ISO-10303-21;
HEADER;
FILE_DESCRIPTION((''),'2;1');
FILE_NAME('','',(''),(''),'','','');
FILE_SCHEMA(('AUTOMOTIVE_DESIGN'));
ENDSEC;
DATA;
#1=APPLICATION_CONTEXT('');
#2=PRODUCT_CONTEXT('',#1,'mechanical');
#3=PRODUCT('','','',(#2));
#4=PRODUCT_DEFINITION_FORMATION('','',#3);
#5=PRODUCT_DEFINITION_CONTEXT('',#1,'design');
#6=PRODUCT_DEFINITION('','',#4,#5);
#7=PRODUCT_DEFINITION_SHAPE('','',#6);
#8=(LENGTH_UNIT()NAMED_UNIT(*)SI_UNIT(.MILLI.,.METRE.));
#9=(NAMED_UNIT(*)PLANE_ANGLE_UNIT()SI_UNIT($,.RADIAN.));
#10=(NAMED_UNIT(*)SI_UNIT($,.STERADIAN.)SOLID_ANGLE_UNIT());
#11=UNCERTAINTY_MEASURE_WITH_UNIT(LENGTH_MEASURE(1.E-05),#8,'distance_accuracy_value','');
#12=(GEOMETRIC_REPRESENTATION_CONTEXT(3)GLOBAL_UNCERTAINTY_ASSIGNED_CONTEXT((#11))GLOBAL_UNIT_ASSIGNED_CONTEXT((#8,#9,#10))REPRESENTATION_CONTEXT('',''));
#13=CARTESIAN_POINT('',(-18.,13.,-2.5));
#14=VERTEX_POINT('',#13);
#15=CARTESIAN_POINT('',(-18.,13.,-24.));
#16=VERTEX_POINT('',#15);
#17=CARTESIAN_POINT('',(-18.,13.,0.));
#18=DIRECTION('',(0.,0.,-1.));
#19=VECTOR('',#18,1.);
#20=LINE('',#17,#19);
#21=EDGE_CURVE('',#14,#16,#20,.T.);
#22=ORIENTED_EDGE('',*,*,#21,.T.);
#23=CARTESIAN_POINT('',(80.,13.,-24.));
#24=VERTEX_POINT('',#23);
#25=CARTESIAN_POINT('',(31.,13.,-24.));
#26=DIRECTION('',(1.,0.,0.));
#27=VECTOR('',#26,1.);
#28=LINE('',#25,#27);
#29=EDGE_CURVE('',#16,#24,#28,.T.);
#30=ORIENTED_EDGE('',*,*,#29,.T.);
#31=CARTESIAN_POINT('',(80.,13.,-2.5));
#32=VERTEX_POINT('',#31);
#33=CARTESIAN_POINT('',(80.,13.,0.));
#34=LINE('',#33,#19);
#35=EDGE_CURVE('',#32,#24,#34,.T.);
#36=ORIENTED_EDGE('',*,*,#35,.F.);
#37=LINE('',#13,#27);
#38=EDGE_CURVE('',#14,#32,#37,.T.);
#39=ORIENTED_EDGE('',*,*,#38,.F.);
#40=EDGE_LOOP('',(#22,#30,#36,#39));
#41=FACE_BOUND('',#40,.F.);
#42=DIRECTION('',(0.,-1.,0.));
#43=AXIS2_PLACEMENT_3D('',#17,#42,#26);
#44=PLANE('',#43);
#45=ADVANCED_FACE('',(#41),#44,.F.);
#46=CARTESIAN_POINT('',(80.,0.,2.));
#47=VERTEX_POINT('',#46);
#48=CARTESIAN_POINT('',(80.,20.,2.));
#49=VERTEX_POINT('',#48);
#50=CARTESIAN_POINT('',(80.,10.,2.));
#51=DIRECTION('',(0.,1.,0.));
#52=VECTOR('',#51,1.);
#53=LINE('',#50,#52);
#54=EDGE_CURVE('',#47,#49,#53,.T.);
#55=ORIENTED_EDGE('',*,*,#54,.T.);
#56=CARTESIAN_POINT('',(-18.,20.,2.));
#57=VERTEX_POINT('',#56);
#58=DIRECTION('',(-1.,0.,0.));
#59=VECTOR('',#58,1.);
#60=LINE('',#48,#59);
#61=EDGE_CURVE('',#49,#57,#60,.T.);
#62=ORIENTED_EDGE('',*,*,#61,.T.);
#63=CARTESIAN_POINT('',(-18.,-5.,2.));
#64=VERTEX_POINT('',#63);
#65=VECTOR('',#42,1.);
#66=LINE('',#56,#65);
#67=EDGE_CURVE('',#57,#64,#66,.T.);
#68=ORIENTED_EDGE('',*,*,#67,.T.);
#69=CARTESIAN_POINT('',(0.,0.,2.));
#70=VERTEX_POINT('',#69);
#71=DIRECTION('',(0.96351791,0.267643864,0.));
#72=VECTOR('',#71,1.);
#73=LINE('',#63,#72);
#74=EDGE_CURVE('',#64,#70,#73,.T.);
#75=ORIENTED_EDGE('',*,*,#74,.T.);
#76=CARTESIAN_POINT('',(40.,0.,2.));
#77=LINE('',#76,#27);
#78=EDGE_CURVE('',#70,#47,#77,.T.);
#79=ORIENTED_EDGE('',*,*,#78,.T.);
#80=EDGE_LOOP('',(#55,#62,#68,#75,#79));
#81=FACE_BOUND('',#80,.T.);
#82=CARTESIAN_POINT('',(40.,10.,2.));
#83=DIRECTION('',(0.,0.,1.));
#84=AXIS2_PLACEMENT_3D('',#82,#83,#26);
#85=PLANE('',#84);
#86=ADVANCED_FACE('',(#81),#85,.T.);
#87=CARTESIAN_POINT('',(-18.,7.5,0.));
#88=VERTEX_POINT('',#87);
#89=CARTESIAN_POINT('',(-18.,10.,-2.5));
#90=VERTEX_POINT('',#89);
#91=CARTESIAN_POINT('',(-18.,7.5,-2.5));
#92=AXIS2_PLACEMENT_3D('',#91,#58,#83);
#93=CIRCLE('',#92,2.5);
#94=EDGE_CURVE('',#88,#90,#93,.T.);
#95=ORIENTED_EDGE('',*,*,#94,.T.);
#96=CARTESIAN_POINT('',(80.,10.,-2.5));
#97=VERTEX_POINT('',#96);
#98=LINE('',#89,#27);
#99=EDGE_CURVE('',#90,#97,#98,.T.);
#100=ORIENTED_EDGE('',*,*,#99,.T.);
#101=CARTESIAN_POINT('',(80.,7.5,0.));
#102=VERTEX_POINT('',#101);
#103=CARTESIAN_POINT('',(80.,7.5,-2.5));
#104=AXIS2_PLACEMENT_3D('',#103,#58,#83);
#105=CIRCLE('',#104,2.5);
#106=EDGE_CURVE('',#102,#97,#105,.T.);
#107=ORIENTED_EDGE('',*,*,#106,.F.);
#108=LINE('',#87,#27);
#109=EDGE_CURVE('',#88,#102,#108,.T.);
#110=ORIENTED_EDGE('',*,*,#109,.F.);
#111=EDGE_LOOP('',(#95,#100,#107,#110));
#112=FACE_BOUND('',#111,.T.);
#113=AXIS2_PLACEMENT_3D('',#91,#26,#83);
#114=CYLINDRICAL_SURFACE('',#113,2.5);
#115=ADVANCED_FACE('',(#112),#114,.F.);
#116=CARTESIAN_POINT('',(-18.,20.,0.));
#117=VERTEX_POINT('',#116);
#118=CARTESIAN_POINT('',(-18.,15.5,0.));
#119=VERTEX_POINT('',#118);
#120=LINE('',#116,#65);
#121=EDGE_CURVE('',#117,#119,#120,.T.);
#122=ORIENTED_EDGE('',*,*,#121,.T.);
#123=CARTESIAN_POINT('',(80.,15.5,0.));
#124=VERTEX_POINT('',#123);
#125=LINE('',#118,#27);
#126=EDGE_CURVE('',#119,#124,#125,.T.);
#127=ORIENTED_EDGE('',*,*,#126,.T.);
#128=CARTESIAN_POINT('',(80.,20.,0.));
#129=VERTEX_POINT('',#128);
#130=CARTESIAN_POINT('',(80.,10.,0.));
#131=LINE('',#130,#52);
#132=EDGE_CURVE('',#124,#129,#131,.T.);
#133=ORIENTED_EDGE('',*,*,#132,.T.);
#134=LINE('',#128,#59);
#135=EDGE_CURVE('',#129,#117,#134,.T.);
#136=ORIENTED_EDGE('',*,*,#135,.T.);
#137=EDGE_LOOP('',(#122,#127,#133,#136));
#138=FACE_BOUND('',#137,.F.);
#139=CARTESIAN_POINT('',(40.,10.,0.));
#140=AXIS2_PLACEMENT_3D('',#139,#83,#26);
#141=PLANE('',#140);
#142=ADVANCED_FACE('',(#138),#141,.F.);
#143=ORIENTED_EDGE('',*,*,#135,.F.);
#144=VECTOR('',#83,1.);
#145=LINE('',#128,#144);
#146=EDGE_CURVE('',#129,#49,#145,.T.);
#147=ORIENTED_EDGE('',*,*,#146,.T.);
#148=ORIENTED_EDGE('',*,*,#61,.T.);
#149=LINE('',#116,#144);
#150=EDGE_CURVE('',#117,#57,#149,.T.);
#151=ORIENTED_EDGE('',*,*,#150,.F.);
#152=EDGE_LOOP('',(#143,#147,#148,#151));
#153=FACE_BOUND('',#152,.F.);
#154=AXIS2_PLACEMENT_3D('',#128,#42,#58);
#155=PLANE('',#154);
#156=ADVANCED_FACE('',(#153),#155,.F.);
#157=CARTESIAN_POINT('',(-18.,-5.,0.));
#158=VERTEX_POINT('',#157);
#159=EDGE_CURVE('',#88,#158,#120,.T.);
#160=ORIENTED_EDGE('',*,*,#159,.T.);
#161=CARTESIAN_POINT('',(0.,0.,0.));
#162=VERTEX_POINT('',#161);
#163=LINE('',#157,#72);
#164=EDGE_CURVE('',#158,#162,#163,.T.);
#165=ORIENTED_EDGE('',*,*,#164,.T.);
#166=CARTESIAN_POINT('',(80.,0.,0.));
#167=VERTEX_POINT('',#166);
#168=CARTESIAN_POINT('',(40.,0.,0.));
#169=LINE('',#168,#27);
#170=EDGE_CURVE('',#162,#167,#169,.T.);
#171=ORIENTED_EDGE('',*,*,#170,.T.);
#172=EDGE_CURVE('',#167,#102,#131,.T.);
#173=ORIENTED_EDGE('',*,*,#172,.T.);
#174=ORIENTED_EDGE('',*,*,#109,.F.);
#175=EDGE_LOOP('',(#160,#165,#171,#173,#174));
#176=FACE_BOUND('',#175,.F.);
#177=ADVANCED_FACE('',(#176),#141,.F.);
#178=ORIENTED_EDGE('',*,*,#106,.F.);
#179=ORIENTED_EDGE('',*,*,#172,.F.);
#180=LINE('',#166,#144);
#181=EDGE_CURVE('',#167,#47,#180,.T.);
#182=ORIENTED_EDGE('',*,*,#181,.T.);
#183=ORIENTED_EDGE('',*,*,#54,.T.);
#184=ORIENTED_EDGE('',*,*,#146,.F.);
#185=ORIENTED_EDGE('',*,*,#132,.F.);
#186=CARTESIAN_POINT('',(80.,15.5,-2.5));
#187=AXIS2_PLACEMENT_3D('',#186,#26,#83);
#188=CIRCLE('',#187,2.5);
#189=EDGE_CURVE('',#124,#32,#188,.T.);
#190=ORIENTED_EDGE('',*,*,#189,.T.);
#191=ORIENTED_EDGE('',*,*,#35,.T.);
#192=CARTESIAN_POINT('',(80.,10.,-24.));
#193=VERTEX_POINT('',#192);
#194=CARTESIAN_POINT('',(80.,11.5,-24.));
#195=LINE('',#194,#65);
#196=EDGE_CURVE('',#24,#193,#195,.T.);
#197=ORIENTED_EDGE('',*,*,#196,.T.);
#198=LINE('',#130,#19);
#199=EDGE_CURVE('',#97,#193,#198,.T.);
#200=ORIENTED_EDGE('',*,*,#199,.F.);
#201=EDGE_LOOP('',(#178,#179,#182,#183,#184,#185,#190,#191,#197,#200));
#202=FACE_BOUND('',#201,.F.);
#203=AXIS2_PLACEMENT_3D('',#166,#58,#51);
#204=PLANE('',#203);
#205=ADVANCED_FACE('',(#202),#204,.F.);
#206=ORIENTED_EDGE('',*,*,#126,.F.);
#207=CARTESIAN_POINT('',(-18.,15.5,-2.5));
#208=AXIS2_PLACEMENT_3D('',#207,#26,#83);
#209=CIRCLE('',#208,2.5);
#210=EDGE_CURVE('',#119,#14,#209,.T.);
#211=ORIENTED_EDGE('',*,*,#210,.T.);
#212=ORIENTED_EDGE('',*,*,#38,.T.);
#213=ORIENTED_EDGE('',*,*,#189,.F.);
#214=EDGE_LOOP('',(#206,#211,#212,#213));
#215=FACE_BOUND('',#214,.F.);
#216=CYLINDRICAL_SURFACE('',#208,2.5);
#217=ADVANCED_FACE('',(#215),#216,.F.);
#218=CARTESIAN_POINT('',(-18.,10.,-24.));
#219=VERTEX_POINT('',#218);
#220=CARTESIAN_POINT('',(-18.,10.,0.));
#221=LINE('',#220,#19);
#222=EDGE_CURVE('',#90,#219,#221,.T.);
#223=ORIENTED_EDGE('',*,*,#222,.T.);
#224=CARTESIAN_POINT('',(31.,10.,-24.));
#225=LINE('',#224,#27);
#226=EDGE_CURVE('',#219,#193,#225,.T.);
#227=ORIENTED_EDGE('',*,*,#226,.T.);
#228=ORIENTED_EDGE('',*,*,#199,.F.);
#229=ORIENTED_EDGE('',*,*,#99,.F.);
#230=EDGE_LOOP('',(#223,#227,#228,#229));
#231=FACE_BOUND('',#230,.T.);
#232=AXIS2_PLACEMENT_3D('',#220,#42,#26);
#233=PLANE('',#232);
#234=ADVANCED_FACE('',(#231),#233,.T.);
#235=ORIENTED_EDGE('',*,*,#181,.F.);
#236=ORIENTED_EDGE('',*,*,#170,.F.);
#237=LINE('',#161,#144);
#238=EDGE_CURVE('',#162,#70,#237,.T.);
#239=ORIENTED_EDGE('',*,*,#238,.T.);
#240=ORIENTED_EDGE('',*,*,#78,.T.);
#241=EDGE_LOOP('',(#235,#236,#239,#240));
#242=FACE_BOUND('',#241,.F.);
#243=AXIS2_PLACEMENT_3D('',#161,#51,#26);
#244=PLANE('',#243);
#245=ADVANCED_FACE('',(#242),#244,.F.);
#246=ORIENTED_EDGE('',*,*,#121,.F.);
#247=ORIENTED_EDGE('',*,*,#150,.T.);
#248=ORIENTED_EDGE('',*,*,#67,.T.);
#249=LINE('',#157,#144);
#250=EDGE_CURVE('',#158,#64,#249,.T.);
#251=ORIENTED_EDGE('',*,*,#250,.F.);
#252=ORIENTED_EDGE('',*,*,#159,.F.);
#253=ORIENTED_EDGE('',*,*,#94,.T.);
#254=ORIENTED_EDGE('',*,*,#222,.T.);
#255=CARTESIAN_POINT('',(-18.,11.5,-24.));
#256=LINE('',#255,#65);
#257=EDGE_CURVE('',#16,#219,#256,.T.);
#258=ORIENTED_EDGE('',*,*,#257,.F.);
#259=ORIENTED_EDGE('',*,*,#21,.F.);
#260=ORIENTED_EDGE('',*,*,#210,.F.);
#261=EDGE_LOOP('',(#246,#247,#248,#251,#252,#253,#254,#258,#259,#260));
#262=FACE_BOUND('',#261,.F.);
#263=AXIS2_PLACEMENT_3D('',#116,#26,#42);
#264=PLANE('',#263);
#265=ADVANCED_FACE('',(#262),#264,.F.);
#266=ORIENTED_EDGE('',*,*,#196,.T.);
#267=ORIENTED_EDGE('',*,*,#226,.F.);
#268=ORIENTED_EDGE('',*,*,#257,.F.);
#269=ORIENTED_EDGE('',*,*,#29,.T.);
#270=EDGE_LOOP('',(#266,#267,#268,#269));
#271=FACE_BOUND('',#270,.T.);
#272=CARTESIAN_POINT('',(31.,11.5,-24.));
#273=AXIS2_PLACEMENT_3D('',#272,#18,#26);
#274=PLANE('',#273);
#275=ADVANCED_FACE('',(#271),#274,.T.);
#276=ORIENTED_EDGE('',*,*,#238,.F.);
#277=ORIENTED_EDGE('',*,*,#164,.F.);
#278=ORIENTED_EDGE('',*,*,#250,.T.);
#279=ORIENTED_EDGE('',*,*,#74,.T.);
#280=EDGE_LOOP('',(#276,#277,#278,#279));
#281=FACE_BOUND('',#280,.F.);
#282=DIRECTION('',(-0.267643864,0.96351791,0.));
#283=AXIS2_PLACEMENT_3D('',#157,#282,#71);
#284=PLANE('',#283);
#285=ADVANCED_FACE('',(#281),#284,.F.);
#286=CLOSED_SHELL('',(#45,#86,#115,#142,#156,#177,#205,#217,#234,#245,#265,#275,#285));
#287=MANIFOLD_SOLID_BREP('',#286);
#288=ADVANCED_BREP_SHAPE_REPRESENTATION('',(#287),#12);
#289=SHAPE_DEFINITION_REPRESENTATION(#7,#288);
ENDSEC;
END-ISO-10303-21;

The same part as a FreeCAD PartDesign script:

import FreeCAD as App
import Part
import Sketcher
from FreeCAD import Vector


def edges_at(feature, points):
    """Names of the edges that pass closest to the given points."""
    edges = feature.Shape.Edges
    near = lambda p: min(range(len(edges)), key=lambda i: edges[i].distToShape(Part.Vertex(*p))[0])
    return sorted({f"Edge{near(p) + 1}" for p in points})

doc = App.newDocument("Part")
params = doc.addObject("Spreadsheet::Sheet", "Params")
for row, (alias, value) in enumerate([
    ("sketch1_width", "80 mm"),
    ("sketch1_width2", "98 mm"),
    ("sketch1_height", "20 mm"),
    ("sketch1_height2", "25 mm"),
    ("pad1_length", "2 mm"),
    ("sketch2_width", "98 mm"),
    ("sketch2_height", "3 mm"),
    ("pad2_length", "24 mm"),
    ("fillet_radius", "2.5 mm"),
], start=1):
    params.set(f"A{row}", alias)
    params.set(f"B{row}", "=" + value)
    params.setAlias(f"B{row}", alias)

body = doc.addObject("PartDesign::Body", "Body")

# Sketch on XY plane
sketch1 = body.newObject("Sketcher::SketchObject", "Sketch")
sketch1.AttachmentSupport = (doc.getObject("XY_Plane"), [""])
sketch1.MapMode = "FlatFace"
sketch1.addGeometry(Part.LineSegment(Vector(0, 0, 0), Vector(80, 0, 0)), False)
sketch1.addGeometry(Part.LineSegment(Vector(80, 0, 0), Vector(80, 20, 0)), False)
sketch1.addGeometry(Part.LineSegment(Vector(80, 20, 0), Vector(-18, 20, 0)), False)
sketch1.addGeometry(Part.LineSegment(Vector(-18, 20, 0), Vector(-18, -5, 0)), False)
sketch1.addGeometry(Part.LineSegment(Vector(-18, -5, 0), Vector(0, 0, 0)), False)
sketch1.addConstraint(Sketcher.Constraint("Coincident", 0, 2, 1, 1))
sketch1.addConstraint(Sketcher.Constraint("Coincident", 1, 2, 2, 1))
sketch1.addConstraint(Sketcher.Constraint("Coincident", 2, 2, 3, 1))
sketch1.addConstraint(Sketcher.Constraint("Coincident", 3, 2, 4, 1))
sketch1.addConstraint(Sketcher.Constraint("Coincident", 4, 2, 0, 1))
sketch1.addConstraint(Sketcher.Constraint("Horizontal", 0))
sketch1.addConstraint(Sketcher.Constraint("Vertical", 1))
sketch1.addConstraint(Sketcher.Constraint("Horizontal", 2))
sketch1.addConstraint(Sketcher.Constraint("Vertical", 3))
sketch1.addConstraint(Sketcher.Constraint("Coincident", 4, 2, -1, 1))
sketch1.addConstraint(Sketcher.Constraint("DistanceX", 0, 1, 0, 2, 80.0))
sketch1.addConstraint(Sketcher.Constraint("DistanceX", 2, 2, 2, 1, 98.0))
sketch1.addConstraint(Sketcher.Constraint("DistanceY", 1, 1, 1, 2, 20.0))
sketch1.addConstraint(Sketcher.Constraint("DistanceY", 3, 2, 3, 1, 25.0))
sketch1.setExpression("Constraints[10]", "Params.sketch1_width")
sketch1.setExpression("Constraints[11]", "Params.sketch1_width2")
sketch1.setExpression("Constraints[12]", "Params.sketch1_height")
sketch1.setExpression("Constraints[13]", "Params.sketch1_height2")
pad1 = body.newObject("PartDesign::Pad", "Pad")
pad1.Profile = sketch1
pad1.setExpression("Length", "Params.pad1_length")

# Sketch on XY plane
sketch2 = body.newObject("Sketcher::SketchObject", "Sketch001")
sketch2.AttachmentSupport = (doc.getObject("XY_Plane"), [""])
sketch2.MapMode = "FlatFace"
sketch2.addGeometry(Part.LineSegment(Vector(-18, 10, 0), Vector(-18, 13, 0)), False)
sketch2.addGeometry(Part.LineSegment(Vector(-18, 13, 0), Vector(80, 13, 0)), False)
sketch2.addGeometry(Part.LineSegment(Vector(80, 13, 0), Vector(80, 10, 0)), False)
sketch2.addGeometry(Part.LineSegment(Vector(80, 10, 0), Vector(-18, 10, 0)), False)
sketch2.addConstraint(Sketcher.Constraint("Coincident", 0, 2, 1, 1))
sketch2.addConstraint(Sketcher.Constraint("Coincident", 1, 2, 2, 1))
sketch2.addConstraint(Sketcher.Constraint("Coincident", 2, 2, 3, 1))
sketch2.addConstraint(Sketcher.Constraint("Coincident", 3, 2, 0, 1))
sketch2.addConstraint(Sketcher.Constraint("Vertical", 0))
sketch2.addConstraint(Sketcher.Constraint("Horizontal", 1))
sketch2.addConstraint(Sketcher.Constraint("Vertical", 2))
sketch2.addConstraint(Sketcher.Constraint("Horizontal", 3))
sketch2.addConstraint(Sketcher.Constraint("DistanceX", 1, 1, 1, 2, 98.0))
sketch2.addConstraint(Sketcher.Constraint("DistanceY", 0, 1, 0, 2, 3.0))
sketch2.addConstraint(Sketcher.Constraint("DistanceX", 0, 2, -1, 1, 18.0))
sketch2.addConstraint(Sketcher.Constraint("DistanceY", -1, 1, 0, 2, 13.0))
sketch2.setExpression("Constraints[8]", "Params.sketch2_width")
sketch2.setExpression("Constraints[9]", "Params.sketch2_height")
pad2 = body.newObject("PartDesign::Pad", "Pad001")
pad2.Profile = sketch2
pad2.setExpression("Length", "Params.pad2_length")
pad2.Reversed = True
doc.recompute()

fillet = body.newObject("PartDesign::Fillet", "Fillet")
fillet.Base = (pad2, edges_at(pad2, [(31, 10, 0), (31, 13, 0)]))
fillet.setExpression("Radius", "Params.fillet_radius")

doc.recompute()
